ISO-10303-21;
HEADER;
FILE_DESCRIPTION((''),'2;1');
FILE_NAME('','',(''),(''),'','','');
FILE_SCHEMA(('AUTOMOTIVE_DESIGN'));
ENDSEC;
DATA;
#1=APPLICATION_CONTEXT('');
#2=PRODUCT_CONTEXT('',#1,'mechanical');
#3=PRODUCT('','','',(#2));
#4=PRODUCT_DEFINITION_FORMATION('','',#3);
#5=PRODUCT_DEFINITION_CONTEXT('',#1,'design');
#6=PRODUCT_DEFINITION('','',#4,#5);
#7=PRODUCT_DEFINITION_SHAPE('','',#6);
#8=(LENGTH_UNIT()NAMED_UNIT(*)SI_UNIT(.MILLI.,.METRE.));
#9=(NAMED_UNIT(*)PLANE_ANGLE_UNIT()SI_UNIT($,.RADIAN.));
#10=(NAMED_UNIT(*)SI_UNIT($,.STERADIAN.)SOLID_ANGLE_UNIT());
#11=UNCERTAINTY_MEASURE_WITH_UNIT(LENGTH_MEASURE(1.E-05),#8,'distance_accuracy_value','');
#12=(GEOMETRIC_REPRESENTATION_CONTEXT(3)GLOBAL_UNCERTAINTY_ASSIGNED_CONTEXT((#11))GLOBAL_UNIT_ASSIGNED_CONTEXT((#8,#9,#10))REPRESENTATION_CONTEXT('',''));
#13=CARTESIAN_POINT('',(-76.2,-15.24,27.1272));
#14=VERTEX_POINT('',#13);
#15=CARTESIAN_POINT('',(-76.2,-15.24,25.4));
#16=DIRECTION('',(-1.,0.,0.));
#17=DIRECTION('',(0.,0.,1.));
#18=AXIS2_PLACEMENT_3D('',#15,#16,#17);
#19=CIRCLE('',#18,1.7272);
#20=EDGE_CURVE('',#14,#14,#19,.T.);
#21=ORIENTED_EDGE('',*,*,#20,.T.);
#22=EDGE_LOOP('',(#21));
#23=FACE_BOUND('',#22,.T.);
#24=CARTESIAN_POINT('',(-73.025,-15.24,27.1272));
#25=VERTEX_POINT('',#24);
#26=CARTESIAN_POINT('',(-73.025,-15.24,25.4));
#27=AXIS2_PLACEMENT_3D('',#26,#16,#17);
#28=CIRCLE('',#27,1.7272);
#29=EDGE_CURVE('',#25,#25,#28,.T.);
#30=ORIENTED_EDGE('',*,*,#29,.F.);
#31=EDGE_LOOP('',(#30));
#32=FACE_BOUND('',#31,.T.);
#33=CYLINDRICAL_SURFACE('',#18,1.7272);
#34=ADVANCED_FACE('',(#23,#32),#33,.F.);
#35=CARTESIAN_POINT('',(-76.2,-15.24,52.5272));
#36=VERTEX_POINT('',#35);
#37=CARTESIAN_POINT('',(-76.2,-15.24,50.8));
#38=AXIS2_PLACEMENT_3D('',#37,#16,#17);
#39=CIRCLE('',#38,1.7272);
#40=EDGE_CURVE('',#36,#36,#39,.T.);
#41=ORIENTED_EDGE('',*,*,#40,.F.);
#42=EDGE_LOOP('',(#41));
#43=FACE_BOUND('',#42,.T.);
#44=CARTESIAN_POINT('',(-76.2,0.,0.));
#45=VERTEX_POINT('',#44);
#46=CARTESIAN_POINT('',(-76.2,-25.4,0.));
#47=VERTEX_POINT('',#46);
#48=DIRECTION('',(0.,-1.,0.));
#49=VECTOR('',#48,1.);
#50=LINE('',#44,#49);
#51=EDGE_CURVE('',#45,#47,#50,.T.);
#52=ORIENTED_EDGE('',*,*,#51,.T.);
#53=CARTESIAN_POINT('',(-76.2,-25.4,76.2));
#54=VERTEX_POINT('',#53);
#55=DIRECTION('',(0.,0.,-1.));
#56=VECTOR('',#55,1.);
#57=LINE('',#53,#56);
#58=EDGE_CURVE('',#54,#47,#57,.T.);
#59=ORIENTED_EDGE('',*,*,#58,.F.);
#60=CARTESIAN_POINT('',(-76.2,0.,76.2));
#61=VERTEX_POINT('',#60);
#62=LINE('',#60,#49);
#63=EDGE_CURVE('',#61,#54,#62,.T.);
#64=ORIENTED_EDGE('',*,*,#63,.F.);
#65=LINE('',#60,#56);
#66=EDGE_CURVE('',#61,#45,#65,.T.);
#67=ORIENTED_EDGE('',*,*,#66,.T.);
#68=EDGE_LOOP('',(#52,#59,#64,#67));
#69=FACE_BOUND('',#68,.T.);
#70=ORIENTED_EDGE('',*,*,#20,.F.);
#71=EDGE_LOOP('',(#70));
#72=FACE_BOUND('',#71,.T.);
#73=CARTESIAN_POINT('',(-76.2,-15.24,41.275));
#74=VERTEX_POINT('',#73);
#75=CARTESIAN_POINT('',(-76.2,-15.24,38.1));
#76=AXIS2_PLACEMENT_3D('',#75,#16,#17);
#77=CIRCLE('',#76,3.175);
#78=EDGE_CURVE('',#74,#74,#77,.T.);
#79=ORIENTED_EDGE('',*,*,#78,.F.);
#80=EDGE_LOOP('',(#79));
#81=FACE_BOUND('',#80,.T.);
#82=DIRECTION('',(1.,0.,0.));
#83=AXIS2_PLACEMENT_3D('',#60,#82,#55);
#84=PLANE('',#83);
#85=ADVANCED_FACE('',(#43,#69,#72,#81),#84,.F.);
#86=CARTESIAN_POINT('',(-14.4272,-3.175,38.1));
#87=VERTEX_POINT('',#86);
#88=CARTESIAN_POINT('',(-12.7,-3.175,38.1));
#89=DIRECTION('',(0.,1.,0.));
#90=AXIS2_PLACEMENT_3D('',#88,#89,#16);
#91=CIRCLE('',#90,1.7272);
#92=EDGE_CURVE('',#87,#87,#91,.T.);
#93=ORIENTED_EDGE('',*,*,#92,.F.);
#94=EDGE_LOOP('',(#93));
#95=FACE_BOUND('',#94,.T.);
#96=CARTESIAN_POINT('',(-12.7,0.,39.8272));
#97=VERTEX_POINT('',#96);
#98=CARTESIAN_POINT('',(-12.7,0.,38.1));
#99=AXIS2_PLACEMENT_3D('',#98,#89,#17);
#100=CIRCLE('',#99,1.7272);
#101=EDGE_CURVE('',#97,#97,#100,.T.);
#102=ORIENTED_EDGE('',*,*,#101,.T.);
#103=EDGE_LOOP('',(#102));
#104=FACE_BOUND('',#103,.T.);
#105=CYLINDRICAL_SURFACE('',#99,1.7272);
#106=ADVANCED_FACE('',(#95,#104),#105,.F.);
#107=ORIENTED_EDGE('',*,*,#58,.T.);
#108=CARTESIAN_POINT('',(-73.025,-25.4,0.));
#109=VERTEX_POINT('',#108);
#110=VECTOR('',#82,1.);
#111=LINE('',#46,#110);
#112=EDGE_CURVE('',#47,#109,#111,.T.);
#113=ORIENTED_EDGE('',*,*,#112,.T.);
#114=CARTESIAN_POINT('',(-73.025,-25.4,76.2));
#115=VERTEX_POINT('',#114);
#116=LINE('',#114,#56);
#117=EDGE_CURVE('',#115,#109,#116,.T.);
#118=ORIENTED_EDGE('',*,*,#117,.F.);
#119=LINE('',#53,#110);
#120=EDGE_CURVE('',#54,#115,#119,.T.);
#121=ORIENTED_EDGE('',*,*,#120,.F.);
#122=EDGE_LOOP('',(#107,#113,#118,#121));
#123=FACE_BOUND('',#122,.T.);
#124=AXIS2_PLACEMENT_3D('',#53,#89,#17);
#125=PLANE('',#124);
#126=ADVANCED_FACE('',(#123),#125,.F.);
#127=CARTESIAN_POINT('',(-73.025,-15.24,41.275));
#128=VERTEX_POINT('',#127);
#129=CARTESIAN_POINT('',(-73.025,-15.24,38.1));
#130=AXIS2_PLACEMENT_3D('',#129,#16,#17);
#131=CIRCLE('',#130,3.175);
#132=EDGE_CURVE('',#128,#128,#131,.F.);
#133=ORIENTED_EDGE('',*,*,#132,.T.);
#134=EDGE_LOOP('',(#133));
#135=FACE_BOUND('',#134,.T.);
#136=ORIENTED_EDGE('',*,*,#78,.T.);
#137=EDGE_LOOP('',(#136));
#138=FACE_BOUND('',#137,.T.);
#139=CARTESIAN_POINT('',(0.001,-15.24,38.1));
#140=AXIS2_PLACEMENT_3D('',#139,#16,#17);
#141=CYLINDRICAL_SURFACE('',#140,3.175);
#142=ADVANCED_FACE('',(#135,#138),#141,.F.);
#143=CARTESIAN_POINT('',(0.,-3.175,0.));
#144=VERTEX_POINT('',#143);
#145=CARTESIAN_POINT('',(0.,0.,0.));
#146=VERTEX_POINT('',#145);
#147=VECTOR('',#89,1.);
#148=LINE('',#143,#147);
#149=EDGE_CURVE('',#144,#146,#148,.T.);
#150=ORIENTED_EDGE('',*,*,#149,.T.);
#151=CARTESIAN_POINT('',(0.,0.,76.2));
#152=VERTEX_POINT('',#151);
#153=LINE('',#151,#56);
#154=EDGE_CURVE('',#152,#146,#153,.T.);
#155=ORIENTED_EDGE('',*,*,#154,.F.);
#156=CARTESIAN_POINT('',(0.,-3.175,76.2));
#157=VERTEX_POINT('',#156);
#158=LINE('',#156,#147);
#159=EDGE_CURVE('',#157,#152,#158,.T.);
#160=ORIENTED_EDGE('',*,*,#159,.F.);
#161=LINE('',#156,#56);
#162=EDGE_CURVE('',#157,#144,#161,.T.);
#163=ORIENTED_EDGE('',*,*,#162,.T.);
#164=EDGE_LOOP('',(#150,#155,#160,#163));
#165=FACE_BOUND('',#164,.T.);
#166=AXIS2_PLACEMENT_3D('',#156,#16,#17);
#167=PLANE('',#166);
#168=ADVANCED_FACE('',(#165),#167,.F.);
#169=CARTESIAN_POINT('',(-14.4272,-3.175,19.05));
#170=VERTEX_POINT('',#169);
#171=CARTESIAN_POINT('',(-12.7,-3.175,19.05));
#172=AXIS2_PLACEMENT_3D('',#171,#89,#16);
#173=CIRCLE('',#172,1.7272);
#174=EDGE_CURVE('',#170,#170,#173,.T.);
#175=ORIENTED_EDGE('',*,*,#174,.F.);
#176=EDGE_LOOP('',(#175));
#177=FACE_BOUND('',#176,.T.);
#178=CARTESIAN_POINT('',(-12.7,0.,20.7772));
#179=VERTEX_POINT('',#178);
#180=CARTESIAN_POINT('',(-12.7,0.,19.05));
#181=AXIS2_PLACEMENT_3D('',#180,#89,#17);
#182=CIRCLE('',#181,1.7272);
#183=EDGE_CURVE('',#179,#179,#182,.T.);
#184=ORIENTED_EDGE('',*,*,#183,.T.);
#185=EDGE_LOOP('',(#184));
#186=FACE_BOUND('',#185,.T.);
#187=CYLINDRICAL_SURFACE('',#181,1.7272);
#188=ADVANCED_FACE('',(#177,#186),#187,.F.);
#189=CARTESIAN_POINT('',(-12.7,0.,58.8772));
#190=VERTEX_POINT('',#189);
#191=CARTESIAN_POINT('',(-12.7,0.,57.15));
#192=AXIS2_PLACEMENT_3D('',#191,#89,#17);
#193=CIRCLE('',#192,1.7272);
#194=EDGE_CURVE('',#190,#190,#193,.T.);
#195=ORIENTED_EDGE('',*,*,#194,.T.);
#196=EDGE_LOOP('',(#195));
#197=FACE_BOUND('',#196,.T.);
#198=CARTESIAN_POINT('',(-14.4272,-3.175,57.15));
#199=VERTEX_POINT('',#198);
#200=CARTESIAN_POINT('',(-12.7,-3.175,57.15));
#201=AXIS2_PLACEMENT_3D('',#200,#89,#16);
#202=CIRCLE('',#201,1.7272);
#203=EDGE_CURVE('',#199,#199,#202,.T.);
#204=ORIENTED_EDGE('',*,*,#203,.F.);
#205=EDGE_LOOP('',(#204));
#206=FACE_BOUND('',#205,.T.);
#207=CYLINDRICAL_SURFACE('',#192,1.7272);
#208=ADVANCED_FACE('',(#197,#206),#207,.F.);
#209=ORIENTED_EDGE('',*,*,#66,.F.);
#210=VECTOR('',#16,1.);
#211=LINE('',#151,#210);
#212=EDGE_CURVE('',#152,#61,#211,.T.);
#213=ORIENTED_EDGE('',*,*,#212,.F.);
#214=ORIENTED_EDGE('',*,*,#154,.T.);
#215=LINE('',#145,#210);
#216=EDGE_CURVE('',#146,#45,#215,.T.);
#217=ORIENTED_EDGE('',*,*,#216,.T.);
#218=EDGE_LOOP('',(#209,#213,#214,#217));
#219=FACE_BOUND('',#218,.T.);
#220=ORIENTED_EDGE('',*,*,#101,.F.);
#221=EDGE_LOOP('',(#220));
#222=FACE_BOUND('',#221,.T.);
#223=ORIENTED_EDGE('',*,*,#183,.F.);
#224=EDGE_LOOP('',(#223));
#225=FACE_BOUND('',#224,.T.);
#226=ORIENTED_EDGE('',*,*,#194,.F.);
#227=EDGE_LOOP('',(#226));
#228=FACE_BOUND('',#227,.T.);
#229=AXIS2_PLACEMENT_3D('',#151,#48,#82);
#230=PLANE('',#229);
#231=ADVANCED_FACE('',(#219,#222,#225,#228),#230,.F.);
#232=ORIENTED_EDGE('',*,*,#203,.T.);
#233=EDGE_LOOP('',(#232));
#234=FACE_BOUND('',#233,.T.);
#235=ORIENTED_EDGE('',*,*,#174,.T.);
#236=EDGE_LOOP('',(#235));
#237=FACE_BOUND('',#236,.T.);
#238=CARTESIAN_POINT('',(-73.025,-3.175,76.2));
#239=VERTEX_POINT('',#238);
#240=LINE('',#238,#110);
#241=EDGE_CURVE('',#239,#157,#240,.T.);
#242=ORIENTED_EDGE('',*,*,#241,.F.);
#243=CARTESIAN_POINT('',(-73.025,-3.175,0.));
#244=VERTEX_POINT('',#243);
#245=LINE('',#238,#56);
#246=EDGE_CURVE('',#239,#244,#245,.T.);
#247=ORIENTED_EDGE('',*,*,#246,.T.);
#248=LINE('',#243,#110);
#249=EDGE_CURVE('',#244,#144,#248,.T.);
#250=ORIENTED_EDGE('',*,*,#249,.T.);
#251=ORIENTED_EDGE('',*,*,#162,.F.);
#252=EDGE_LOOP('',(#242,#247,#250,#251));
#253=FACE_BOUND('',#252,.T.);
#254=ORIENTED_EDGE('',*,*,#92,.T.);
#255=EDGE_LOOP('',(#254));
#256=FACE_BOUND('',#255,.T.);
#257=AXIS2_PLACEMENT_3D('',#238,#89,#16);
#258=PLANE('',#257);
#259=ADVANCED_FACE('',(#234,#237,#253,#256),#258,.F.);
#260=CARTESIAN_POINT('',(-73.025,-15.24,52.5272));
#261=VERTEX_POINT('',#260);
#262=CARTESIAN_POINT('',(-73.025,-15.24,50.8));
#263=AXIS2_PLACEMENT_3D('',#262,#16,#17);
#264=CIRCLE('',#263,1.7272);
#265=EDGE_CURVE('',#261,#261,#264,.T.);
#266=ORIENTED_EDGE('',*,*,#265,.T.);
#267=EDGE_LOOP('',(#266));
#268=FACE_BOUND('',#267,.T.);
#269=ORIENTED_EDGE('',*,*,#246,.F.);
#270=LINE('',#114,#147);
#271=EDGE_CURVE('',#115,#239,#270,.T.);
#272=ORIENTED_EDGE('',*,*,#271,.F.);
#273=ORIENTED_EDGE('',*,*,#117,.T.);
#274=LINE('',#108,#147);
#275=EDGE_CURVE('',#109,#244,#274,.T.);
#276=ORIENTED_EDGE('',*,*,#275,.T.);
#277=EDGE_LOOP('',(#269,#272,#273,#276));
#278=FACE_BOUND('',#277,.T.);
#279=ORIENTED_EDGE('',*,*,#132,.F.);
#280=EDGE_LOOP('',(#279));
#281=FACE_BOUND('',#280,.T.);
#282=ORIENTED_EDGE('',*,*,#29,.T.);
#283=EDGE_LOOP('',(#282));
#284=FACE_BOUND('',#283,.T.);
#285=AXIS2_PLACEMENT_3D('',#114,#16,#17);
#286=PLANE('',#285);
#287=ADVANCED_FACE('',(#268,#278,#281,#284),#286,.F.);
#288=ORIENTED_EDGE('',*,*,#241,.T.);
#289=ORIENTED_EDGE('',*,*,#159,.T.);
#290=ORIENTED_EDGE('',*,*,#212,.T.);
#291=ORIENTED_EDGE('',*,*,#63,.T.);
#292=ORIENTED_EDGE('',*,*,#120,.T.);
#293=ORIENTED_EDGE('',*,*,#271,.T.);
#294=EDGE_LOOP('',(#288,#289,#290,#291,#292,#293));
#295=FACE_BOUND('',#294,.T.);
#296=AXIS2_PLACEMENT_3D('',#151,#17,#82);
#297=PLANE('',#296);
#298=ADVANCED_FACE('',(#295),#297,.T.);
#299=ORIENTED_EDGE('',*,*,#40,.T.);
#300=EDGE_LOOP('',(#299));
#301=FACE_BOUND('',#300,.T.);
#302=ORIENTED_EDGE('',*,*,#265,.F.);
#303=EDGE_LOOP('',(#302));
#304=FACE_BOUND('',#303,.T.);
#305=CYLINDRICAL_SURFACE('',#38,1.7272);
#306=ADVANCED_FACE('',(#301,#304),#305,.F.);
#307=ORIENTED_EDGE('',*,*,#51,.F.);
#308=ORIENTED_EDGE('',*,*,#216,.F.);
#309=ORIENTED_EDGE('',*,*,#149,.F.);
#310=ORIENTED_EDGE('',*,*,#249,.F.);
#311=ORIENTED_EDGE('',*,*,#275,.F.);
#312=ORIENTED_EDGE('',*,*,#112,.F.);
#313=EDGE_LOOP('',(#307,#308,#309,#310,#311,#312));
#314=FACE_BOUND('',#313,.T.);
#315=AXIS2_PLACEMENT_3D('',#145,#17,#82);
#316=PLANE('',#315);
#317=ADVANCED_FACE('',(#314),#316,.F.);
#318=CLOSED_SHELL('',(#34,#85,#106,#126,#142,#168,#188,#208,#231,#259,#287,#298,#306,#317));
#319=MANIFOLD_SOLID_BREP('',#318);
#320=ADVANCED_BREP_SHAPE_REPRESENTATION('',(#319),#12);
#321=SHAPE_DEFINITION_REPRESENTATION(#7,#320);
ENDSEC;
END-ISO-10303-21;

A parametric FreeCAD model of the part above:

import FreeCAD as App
import Part
import Sketcher
Q = App.Units.Quantity


def add_polygon(sketch, points):
    """Adds a closed chain of lines whose ends are joined by coincident constraints."""
    first, n = sketch.GeometryCount, len(points)
    for a, b in zip(points, points[1:] + points[:1]):
        sketch.addGeometry(Part.LineSegment(App.Vector(*a, 0), App.Vector(*b, 0)), False)
    for i in range(n):
        sketch.addConstraint(Sketcher.Constraint("Coincident", first + i, 2, first + (i + 1) % n, 1))

doc = App.newDocument("Part")
body = doc.addObject("PartDesign::Body", "Body")

# Sketch on XY plane
sketch1 = body.newObject("Sketcher::SketchObject", "Sketch")
sketch1.AttachmentSupport = (doc.getObject("XY_Plane"), [""])
sketch1.MapMode = "FlatFace"
add_polygon(sketch1, [(0, 0), (-76.2, 0), (-76.2, -25.4), (-73.025, -25.4), (-73.025, -3.175), (0, -3.175)])  # lines 0-5
sketch1.addConstraint(Sketcher.Constraint("Horizontal", 0))
sketch1.addConstraint(Sketcher.Constraint("Vertical", 1))
sketch1.addConstraint(Sketcher.Constraint("Horizontal", 2))
sketch1.addConstraint(Sketcher.Constraint("Vertical", 3))
sketch1.addConstraint(Sketcher.Constraint("Horizontal", 4))
sketch1.addConstraint(Sketcher.Constraint("Vertical", 5))
sketch1.addConstraint(Sketcher.Constraint("Coincident", 5, 2, -1, 1))
sketch1.addConstraint(Sketcher.Constraint("Equal", 2, 5))
sketch1.addConstraint(Sketcher.Constraint("DistanceX", 0, 2, 0, 1, Q("3 in")))
sketch1.addConstraint(Sketcher.Constraint("DistanceY", 1, 2, 1, 1, Q("1 in")))
sketch1.addConstraint(Sketcher.Constraint("DistanceX", 2, 1, 2, 2, Q("0.125 in")))
pad1 = body.newObject("PartDesign::Pad", "Pad")
pad1.Profile = sketch1
pad1.Length = Q("3 in")

# Sketch on YZ plane
sketch2 = body.newObject("Sketcher::SketchObject", "Sketch001")
sketch2.AttachmentSupport = (doc.getObject("YZ_Plane"), [""])
sketch2.MapMode = "FlatFace"
sketch2.AttachmentOffset = App.Placement(App.Vector(0, 0, -3 * 25.4), App.Rotation())
sketch2.addGeometry(Part.Circle(App.Vector(-15.24, 38.1, 0), App.Vector(0, 0, 1), 3.175), False)
sketch2.addConstraint(Sketcher.Constraint("Diameter", 0, Q("0.25 in")))
sketch2.addConstraint(Sketcher.Constraint("DistanceX", 0, 3, -1, 1, Q("0.6 in")))
sketch2.addConstraint(Sketcher.Constraint("DistanceY", -1, 1, 0, 3, Q("1.5 in")))
pocket1 = body.newObject("PartDesign::Pocket", "Pocket")
pocket1.Profile = sketch2
pocket1.Type = "UpToFirst"
pocket1.Reversed = True

# Sketch on XZ plane
sketch3 = body.newObject("Sketcher::SketchObject", "Sketch002")
sketch3.AttachmentSupport = (doc.getObject("XZ_Plane"), [""])
sketch3.MapMode = "FlatFace"
sketch3.addGeometry(Part.Circle(App.Vector(-12.7, 38.1, 0), App.Vector(0, 0, 1), 1.7272), False)
sketch3.addGeometry(Part.Circle(App.Vector(-12.7, 19.05, 0), App.Vector(0, 0, 1), 1.7272), False)
sketch3.addGeometry(Part.Circle(App.Vector(-12.7, 57.15, 0), App.Vector(0, 0, 1), 1.7272), False)
sketch3.addConstraint(Sketcher.Constraint("Equal", 0, 1))
sketch3.addConstraint(Sketcher.Constraint("Equal", 1, 2))
sketch3.addConstraint(Sketcher.Constraint("Vertical", 0, 3, 1, 3))
sketch3.addConstraint(Sketcher.Constraint("Vertical", 1, 3, 2, 3))
sketch3.addConstraint(Sketcher.Constraint("Diameter", 0, Q("0.136 in")))
sketch3.addConstraint(Sketcher.Constraint("DistanceX", 0, 3, -1, 1, Q("0.5 in")))
sketch3.addConstraint(Sketcher.Constraint("DistanceY", -1, 1, 0, 3, Q("1.5 in")))
sketch3.addConstraint(Sketcher.Constraint("DistanceY", 1, 3, 2, 3, Q("1.5 in")))
sketch3.addConstraint(Sketcher.Constraint("DistanceY", -1, 1, 1, 3, Q("0.75 in")))
doc.recompute()
hole = body.newObject("PartDesign::Hole", "Hole")
hole.Profile = sketch3
hole.ThreadType = "None"
hole.Diameter = Q("0.136 in")
hole.DepthType = "ThroughAll"
hole.Reversed = True

# Sketch on YZ plane
sketch4 = body.newObject("Sketcher::SketchObject", "Sketch003")
sketch4.AttachmentSupport = (doc.getObject("YZ_Plane"), [""])
sketch4.MapMode = "FlatFace"
sketch4.AttachmentOffset = App.Placement(App.Vector(0, 0, -3 * 25.4), App.Rotation())
sketch4.addGeometry(Part.Circle(App.Vector(-15.24, 25.4, 0), App.Vector(0, 0, 1), 1.7272), False)
sketch4.addGeometry(Part.Circle(App.Vector(-15.24, 50.8, 0), App.Vector(0, 0, 1), 1.7272), False)
sketch4.addConstraint(Sketcher.Constraint("Equal", 0, 1))
sketch4.addConstraint(Sketcher.Constraint("Vertical", 0, 3, 1, 3))
sketch4.addConstraint(Sketcher.Constraint("Diameter", 0, Q("0.136 in")))
sketch4.addConstraint(Sketcher.Constraint("DistanceY", -1, 1, 0, 3, Q("1 in")))
sketch4.addConstraint(Sketcher.Constraint("DistanceY", -1, 1, 1, 3, Q("2 in")))
sketch4.addConstraint(Sketcher.Constraint("DistanceX", 0, 3, -1, 1, Q("0.6 in")))
doc.recompute()
hole2 = body.newObject("PartDesign::Hole", "Hole001")
hole2.Profile = sketch4
hole2.ThreadType = "None"
hole2.Diameter = Q("0.136 in")
hole2.DepthType = "ThroughAll"
hole2.Reversed = True

doc.recompute()
